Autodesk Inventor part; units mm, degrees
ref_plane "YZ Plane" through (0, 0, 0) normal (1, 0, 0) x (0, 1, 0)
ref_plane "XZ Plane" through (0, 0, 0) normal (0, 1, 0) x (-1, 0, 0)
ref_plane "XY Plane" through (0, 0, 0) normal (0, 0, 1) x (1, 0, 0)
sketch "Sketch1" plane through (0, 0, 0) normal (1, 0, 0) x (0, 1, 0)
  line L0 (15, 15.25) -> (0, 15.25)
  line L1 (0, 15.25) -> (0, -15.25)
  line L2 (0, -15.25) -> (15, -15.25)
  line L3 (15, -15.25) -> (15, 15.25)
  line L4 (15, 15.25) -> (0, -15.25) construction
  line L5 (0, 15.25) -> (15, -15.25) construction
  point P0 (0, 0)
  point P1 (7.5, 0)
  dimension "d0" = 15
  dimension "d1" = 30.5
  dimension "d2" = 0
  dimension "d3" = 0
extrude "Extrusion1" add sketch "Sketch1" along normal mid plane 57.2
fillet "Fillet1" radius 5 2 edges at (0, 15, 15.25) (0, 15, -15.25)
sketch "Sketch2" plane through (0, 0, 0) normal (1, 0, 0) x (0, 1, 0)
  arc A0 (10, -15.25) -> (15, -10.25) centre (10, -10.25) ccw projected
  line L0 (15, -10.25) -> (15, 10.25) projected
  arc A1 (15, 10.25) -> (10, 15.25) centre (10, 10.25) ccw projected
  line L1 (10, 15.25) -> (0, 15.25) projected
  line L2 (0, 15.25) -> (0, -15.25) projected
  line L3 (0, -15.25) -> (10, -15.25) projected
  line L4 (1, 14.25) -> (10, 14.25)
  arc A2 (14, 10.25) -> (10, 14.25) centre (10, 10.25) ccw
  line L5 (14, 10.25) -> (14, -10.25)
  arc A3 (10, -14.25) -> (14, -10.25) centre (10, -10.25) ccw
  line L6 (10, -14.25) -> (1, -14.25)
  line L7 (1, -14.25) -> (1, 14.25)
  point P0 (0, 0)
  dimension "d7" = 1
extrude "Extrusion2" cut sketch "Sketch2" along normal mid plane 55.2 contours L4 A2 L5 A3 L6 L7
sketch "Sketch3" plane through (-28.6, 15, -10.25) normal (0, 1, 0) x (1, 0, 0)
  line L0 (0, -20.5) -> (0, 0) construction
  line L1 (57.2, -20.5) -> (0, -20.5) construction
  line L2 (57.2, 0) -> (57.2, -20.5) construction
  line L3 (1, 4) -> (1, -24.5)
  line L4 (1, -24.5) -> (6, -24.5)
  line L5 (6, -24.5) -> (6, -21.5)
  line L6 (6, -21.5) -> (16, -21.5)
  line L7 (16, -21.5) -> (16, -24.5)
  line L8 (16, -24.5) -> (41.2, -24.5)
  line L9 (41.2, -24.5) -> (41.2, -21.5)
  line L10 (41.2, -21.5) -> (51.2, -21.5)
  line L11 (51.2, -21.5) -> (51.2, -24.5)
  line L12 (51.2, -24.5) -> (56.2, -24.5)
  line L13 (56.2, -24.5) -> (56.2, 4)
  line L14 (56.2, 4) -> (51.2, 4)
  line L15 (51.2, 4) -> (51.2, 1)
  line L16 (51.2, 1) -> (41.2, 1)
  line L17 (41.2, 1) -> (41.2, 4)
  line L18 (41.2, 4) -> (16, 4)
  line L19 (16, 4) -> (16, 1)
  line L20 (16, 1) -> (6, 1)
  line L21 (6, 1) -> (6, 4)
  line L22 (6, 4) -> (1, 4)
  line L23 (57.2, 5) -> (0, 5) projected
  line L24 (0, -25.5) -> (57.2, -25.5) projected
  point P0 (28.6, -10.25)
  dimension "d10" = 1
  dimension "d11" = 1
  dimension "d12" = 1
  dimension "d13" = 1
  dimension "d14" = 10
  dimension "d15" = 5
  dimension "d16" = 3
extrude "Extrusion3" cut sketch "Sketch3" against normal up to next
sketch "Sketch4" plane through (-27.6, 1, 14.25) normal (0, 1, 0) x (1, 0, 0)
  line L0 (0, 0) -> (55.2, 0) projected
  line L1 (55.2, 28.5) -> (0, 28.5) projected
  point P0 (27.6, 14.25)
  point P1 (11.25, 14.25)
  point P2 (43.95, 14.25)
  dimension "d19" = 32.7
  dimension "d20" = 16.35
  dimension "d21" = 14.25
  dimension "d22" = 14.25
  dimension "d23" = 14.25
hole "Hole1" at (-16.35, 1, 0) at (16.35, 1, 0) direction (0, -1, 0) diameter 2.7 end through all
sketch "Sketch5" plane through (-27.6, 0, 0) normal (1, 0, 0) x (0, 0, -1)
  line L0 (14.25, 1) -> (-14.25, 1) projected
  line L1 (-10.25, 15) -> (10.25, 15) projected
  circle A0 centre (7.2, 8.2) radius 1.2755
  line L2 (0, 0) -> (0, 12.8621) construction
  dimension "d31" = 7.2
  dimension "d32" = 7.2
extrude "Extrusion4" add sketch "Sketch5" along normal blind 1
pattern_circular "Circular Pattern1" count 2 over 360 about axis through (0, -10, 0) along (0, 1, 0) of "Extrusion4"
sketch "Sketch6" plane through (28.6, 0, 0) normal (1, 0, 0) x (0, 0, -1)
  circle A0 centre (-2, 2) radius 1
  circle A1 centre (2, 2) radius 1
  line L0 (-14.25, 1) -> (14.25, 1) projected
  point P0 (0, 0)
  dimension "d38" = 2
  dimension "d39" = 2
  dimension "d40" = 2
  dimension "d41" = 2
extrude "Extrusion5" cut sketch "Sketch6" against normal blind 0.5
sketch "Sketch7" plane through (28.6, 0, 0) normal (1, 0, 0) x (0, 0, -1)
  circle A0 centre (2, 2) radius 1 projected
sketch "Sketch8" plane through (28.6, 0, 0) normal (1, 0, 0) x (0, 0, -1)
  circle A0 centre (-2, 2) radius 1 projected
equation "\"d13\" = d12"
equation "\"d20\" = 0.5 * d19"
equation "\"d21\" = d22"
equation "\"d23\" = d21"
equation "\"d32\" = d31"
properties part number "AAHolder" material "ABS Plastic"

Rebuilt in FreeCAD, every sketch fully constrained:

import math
import FreeCAD as App
import Part
import Sketcher

V = App.Vector


def edges_at(feature, points):
    """Names of the edges that pass closest to the given points."""
    edges = feature.Shape.Edges
    near = lambda p: min(range(len(edges)), key=lambda i: edges[i].distToShape(Part.Vertex(*p))[0])
    return sorted({f"Edge{near(p) + 1}" for p in points})

doc = App.newDocument("Part")
body = doc.addObject("PartDesign::Body", "Body")

sketch1 = body.newObject("Sketcher::SketchObject", "Sketch")
sketch1.AttachmentSupport = (doc.getObject("YZ_Plane"), [""])
sketch1.MapMode = "FlatFace"
sketch1.addGeometry(Part.LineSegment(V(15, -15, 0), V(15, 15, 0)), False)
sketch1.addGeometry(Part.LineSegment(V(15, 15, 0), V(0, 15, 0)), False)
sketch1.addGeometry(Part.LineSegment(V(0, 15, 0), V(0, -15, 0)), False)
sketch1.addGeometry(Part.LineSegment(V(0, -15, 0), V(15, -15, 0)), False)
sketch1.addConstraint(Sketcher.Constraint("Coincident", 0, 2, 1, 1))
sketch1.addConstraint(Sketcher.Constraint("Coincident", 1, 2, 2, 1))
sketch1.addConstraint(Sketcher.Constraint("Coincident", 2, 2, 3, 1))
sketch1.addConstraint(Sketcher.Constraint("Coincident", 3, 2, 0, 1))
sketch1.addConstraint(Sketcher.Constraint("Vertical", 0))
sketch1.addConstraint(Sketcher.Constraint("Horizontal", 1))
sketch1.addConstraint(Sketcher.Constraint("Vertical", 2))
sketch1.addConstraint(Sketcher.Constraint("Horizontal", 3))
sketch1.addConstraint(Sketcher.Constraint("Symmetric", 1, 2, 2, 2, -1, 1))
sketch1.addConstraint(Sketcher.Constraint("DistanceX", 1, 2, 1, 1, 15.0))
sketch1.addConstraint(Sketcher.Constraint("DistanceY", 0, 1, 0, 2, 30.5))
pad1 = body.newObject("PartDesign::Pad", "Pad")
pad1.Profile = sketch1
pad1.Length = 57.2
pad1.Midplane = True
doc.recompute()

fillet = body.newObject("PartDesign::Fillet", "Fillet")
fillet.Base = (pad1, edges_at(pad1, [(0, 15, 15.25), (0, 15, -15.25)]))
fillet.Radius = 5

sketch2 = body.newObject("Sketcher::SketchObject", "Sketch001")
sketch2.AttachmentSupport = (doc.getObject("YZ_Plane"), [""])
sketch2.MapMode = "FlatFace"
sketch2.addGeometry(Part.LineSegment(V(10, 14.2, 0), V(1, 14.2, 0)), False)
sketch2.addGeometry(Part.LineSegment(V(1, 14.2, 0), V(1, -14.2, 0)), False)
sketch2.addGeometry(Part.LineSegment(V(1, -14.2, 0), V(10, -14.2, 0)), False)
sketch2.addGeometry(Part.ArcOfCircle(Part.Circle(V(10, -10.2, 0), V(0, 0, 1), 4), math.radians(-90), math.radians(0)), False)
sketch2.addGeometry(Part.LineSegment(V(14, -10.2, 0), V(14, 10.2, 0)), False)
sketch2.addGeometry(Part.ArcOfCircle(Part.Circle(V(10, 10.2, 0), V(0, 0, 1), 4), math.radians(0), math.radians(90)), False)
sketch2.addConstraint(Sketcher.Constraint("Coincident", 0, 2, 1, 1))
sketch2.addConstraint(Sketcher.Constraint("Coincident", 1, 2, 2, 1))
sketch2.addConstraint(Sketcher.Constraint("Tangent", 2, 2, 3, 1))
sketch2.addConstraint(Sketcher.Constraint("Tangent", 3, 2, 4, 1))
sketch2.addConstraint(Sketcher.Constraint("Tangent", 4, 2, 5, 1))
sketch2.addConstraint(Sketcher.Constraint("Tangent", 5, 2, 0, 1))
sketch2.addConstraint(Sketcher.Constraint("Horizontal", 0))
sketch2.addConstraint(Sketcher.Constraint("Vertical", 1))
sketch2.addConstraint(Sketcher.Constraint("Horizontal", 2))
sketch2.addConstraint(Sketcher.Constraint("Vertical", 4))
sketch2.addConstraint(Sketcher.Constraint("Equal", 3, 5))
sketch2.addConstraint(Sketcher.Constraint("DistanceX", -1, 1, 0, 2, 1.0))
sketch2.addConstraint(Sketcher.Constraint("Radius", 3, 4.0))
sketch2.addConstraint(Sketcher.Constraint("DistanceX", 0, 2, 0, 1, 9.0))
sketch2.addConstraint(Sketcher.Constraint("DistanceY", 1, 2, 1, 1, 28.5))
sketch2.addConstraint(Sketcher.Constraint("DistanceY", 3, 3, -1, 1, 10.25))
pocket1 = body.newObject("PartDesign::Pocket", "Pocket")
pocket1.Profile = sketch2
pocket1.Length = 55.2
pocket1.Midplane = True

sketch3 = body.newObject("Sketcher::SketchObject", "Sketch002")
sketch3.AttachmentSupport = (doc.getObject("XZ_Plane"), [""])
sketch3.MapMode = "FlatFace"
sketch3.AttachmentOffset = App.Placement(V(0, 0, -15), App.Rotation())
sketch3.addGeometry(Part.LineSegment(V(-22.6, -14.2, 0), V(-27.6, -14.2, 0)), False)
sketch3.addGeometry(Part.LineSegment(V(-27.6, -14.2, 0), V(-27.6, 14.2, 0)), False)
sketch3.addGeometry(Part.LineSegment(V(-27.6, 14.2, 0), V(-22.6, 14.2, 0)), False)
sketch3.addGeometry(Part.LineSegment(V(-22.6, 14.2, 0), V(-22.6, 11.2, 0)), False)
sketch3.addGeometry(Part.LineSegment(V(-22.6, 11.2, 0), V(-12.6, 11.2, 0)), False)
sketch3.addGeometry(Part.LineSegment(V(-12.6, 11.2, 0), V(-12.6, 14.2, 0)), False)
sketch3.addGeometry(Part.LineSegment(V(-12.6, 14.2, 0), V(12.6, 14.2, 0)), False)
sketch3.addGeometry(Part.LineSegment(V(12.6, 14.2, 0), V(12.6, 11.2, 0)), False)
sketch3.addGeometry(Part.LineSegment(V(12.6, 11.2, 0), V(22.6, 11.2, 0)), False)
sketch3.addGeometry(Part.LineSegment(V(22.6, 11.2, 0), V(22.6, 14.2, 0)), False)
sketch3.addGeometry(Part.LineSegment(V(22.6, 14.2, 0), V(27.6, 14.2, 0)), False)
sketch3.addGeometry(Part.LineSegment(V(27.6, 14.2, 0), V(27.6, -14.2, 0)), False)
sketch3.addGeometry(Part.LineSegment(V(27.6, -14.2, 0), V(22.6, -14.2, 0)), False)
sketch3.addGeometry(Part.LineSegment(V(22.6, -14.2, 0), V(22.6, -11.2, 0)), False)
sketch3.addGeometry(Part.LineSegment(V(22.6, -11.2, 0), V(12.6, -11.2, 0)), False)
sketch3.addGeometry(Part.LineSegment(V(12.6, -11.2, 0), V(12.6, -14.2, 0)), False)
sketch3.addGeometry(Part.LineSegment(V(12.6, -14.2, 0), V(-12.6, -14.2, 0)), False)
sketch3.addGeometry(Part.LineSegment(V(-12.6, -14.2, 0), V(-12.6, -11.2, 0)), False)
sketch3.addGeometry(Part.LineSegment(V(-12.6, -11.2, 0), V(-22.6, -11.2, 0)), False)
sketch3.addGeometry(Part.LineSegment(V(-22.6, -11.2, 0), V(-22.6, -14.2, 0)), False)
sketch3.addConstraint(Sketcher.Constraint("Coincident", 0, 2, 1, 1))
sketch3.addConstraint(Sketcher.Constraint("Coincident", 1, 2, 2, 1))
sketch3.addConstraint(Sketcher.Constraint("Coincident", 2, 2, 3, 1))
sketch3.addConstraint(Sketcher.Constraint("Coincident", 3, 2, 4, 1))
sketch3.addConstraint(Sketcher.Constraint("Coincident", 4, 2, 5, 1))
sketch3.addConstraint(Sketcher.Constraint("Coincident", 5, 2, 6, 1))
sketch3.addConstraint(Sketcher.Constraint("Coincident", 6, 2, 7, 1))
sketch3.addConstraint(Sketcher.Constraint("Coincident", 7, 2, 8, 1))
sketch3.addConstraint(Sketcher.Constraint("Coincident", 8, 2, 9, 1))
sketch3.addConstraint(Sketcher.Constraint("Coincident", 9, 2, 10, 1))
sketch3.addConstraint(Sketcher.Constraint("Coincident", 10, 2, 11, 1))
sketch3.addConstraint(Sketcher.Constraint("Coincident", 11, 2, 12, 1))
sketch3.addConstraint(Sketcher.Constraint("Coincident", 12, 2, 13, 1))
sketch3.addConstraint(Sketcher.Constraint("Coincident", 13, 2, 14, 1))
sketch3.addConstraint(Sketcher.Constraint("Coincident", 14, 2, 15, 1))
sketch3.addConstraint(Sketcher.Constraint("Coincident", 15, 2, 16, 1))
sketch3.addConstraint(Sketcher.Constraint("Coincident", 16, 2, 17, 1))
sketch3.addConstraint(Sketcher.Constraint("Coincident", 17, 2, 18, 1))
sketch3.addConstraint(Sketcher.Constraint("Coincident", 18, 2, 19, 1))
sketch3.addConstraint(Sketcher.Constraint("Coincident", 19, 2, 0, 1))
sketch3.addConstraint(Sketcher.Constraint("Horizontal", 0))
sketch3.addConstraint(Sketcher.Constraint("Vertical", 1))
sketch3.addConstraint(Sketcher.Constraint("Horizontal", 2))
sketch3.addConstraint(Sketcher.Constraint("Vertical", 3))
sketch3.addConstraint(Sketcher.Constraint("Horizontal", 4))
sketch3.addConstraint(Sketcher.Constraint("Vertical", 5))
sketch3.addConstraint(Sketcher.Constraint("Horizontal", 6))
sketch3.addConstraint(Sketcher.Constraint("Vertical", 7))
sketch3.addConstraint(Sketcher.Constraint("Horizontal", 8))
sketch3.addConstraint(Sketcher.Constraint("Vertical", 9))
sketch3.addConstraint(Sketcher.Constraint("Horizontal", 10))
sketch3.addConstraint(Sketcher.Constraint("Vertical", 11))
sketch3.addConstraint(Sketcher.Constraint("Horizontal", 12))
sketch3.addConstraint(Sketcher.Constraint("Vertical", 13))
sketch3.addConstraint(Sketcher.Constraint("Horizontal", 14))
sketch3.addConstraint(Sketcher.Constraint("Vertical", 15))
sketch3.addConstraint(Sketcher.Constraint("Horizontal", 16))
sketch3.addConstraint(Sketcher.Constraint("Vertical", 17))
sketch3.addConstraint(Sketcher.Constraint("Horizontal", 18))
sketch3.addConstraint(Sketcher.Constraint("Vertical", 19))
sketch3.addConstraint(Sketcher.Constraint("Symmetric", 0, 2, 10, 2, -1, 1))
sketch3.addConstraint(Sketcher.Constraint("Symmetric", 2, 2, 12, 2, -1, 1))
sketch3.addConstraint(Sketcher.Constraint("Symmetric", 4, 2, 14, 2, -1, 1))
sketch3.addConstraint(Sketcher.Constraint("Symmetric", 6, 2, 16, 2, -1, 1))
sketch3.addConstraint(Sketcher.Constraint("Symmetric", 8, 2, 18, 2, -1, 1))
sketch3.addConstraint(Sketcher.Constraint("Symmetric", 4, 2, 7, 2, -2))
sketch3.addConstraint(Sketcher.Constraint("Symmetric", 2, 2, 9, 2, -2))
sketch3.addConstraint(Sketcher.Constraint("Horizontal", 2, 2, 5, 2))
sketch3.addConstraint(Sketcher.Constraint("DistanceX", 0, 2, 0, 1, 5.0))
sketch3.addConstraint(Sketcher.Constraint("DistanceX", 4, 1, 4, 2, 10.0))
sketch3.addConstraint(Sketcher.Constraint("DistanceY", 3, 2, 3, 1, 3.0))
sketch3.addConstraint(Sketcher.Constraint("DistanceX", 6, 1, 6, 2, 25.2))
sketch3.addConstraint(Sketcher.Constraint("DistanceY", 1, 1, 1, 2, 28.5))
pocket2 = body.newObject("PartDesign::Pocket", "Pocket001")
pocket2.Profile = sketch3
pocket2.Length = 5
pocket2.Reversed = True

sketch4 = body.newObject("Sketcher::SketchObject", "Sketch003")
sketch4.AttachmentSupport = (doc.getObject("XZ_Plane"), [""])
sketch4.MapMode = "FlatFace"
sketch4.AttachmentOffset = App.Placement(V(0, 0, -1), App.Rotation())
sketch4.addGeometry(Part.Circle(V(-16.4, 0, 0), V(0, 0, 1), 1.4), False)
sketch4.addGeometry(Part.Circle(V(16.4, 0, 0), V(0, 0, 1), 1.4), False)
sketch4.addConstraint(Sketcher.Constraint("Equal", 0, 1))
sketch4.addConstraint(Sketcher.Constraint("Symmetric", 0, 3, 1, 3, -1, 1))
sketch4.addConstraint(Sketcher.Constraint("PointOnObject", 0, 3, -1))
sketch4.addConstraint(Sketcher.Constraint("Diameter", 0, 2.7))
sketch4.addConstraint(Sketcher.Constraint("DistanceX", 0, 3, 1, 3, 32.7))
doc.recompute()
hole = body.newObject("PartDesign::Hole", "Hole")
hole.Profile = sketch4
hole.ThreadType = "None"
hole.Diameter = 2.7
hole.DepthType = "ThroughAll"
hole.Reversed = True

sketch5 = body.newObject("Sketcher::SketchObject", "Sketch004")
sketch5.AttachmentSupport = (doc.getObject("YZ_Plane"), [""])
sketch5.MapMode = "FlatFace"
sketch5.AttachmentOffset = App.Placement(V(0, 0, -27.6), App.Rotation())
sketch5.addGeometry(Part.Circle(V(8.2, -7.2, 0), V(0, 0, 1), 1.3), False)
sketch5.addConstraint(Sketcher.Constraint("DistanceY", 0, 3, -1, 1, 7.2))
sketch5.addConstraint(Sketcher.Constraint("Diameter", 0, 2.551))
sketch5.addConstraint(Sketcher.Constraint("DistanceX", -1, 1, 0, 3, 8.2))
pad2 = body.newObject("PartDesign::Pad", "Pad001")
pad2.Profile = sketch5
pad2.Length = 1
doc.recompute()

polarpattern = body.newObject("PartDesign::PolarPattern", "PolarPattern")
polarpattern.Originals = [pad2]
polarpattern.Axis = (doc.getObject("Y_Axis"), [""])
polarpattern.Angle = 360
polarpattern.Occurrences = 2
body.Tip = polarpattern

sketch6 = body.newObject("Sketcher::SketchObject", "Sketch005")
sketch6.AttachmentSupport = (doc.getObject("YZ_Plane"), [""])
sketch6.MapMode = "FlatFace"
sketch6.AttachmentOffset = App.Placement(V(0, 0, 28.6), App.Rotation())
sketch6.addGeometry(Part.Circle(V(2, 2, 0), V(0, 0, 1), 1), False)
sketch6.addGeometry(Part.Circle(V(2, -2, 0), V(0, 0, 1), 1), False)
sketch6.addConstraint(Sketcher.Constraint("Equal", 0, 1))
sketch6.addConstraint(Sketcher.Constraint("Symmetric", 0, 3, 1, 3, -1))
sketch6.addConstraint(Sketcher.Constraint("Diameter", 0, 2.0))
sketch6.addConstraint(Sketcher.Constraint("DistanceX", -1, 1, 0, 3, 2.0))
sketch6.addConstraint(Sketcher.Constraint("DistanceY", -1, 1, 0, 3, 2.0))
pocket3 = body.newObject("PartDesign::Pocket", "Pocket002")
pocket3.Profile = sketch6
pocket3.Length = 0.5

doc.recompute()
